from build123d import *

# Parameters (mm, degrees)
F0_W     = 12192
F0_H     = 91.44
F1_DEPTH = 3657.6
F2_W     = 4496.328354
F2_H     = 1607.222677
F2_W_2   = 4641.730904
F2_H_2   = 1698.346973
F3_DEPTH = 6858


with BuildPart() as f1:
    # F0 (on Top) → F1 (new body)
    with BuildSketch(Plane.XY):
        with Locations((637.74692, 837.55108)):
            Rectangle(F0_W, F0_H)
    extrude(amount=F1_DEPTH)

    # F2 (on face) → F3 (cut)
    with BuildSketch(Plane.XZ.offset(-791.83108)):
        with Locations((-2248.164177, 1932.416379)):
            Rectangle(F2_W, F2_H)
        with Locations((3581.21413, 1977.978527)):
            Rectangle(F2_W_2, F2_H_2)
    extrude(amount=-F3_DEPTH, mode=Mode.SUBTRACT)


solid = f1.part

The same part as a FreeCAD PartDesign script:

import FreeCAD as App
import Part
import Sketcher
from FreeCAD import Vector
Q = App.Units.Quantity

doc = App.newDocument("Part")
body = doc.addObject("PartDesign::Body", "Body")

sketch1 = body.newObject("Sketcher::SketchObject", "Sketch")
sketch1.AttachmentSupport = (doc.getObject("XY_Plane"), [""])
sketch1.MapMode = "FlatFace"
sketch1.addGeometry(Part.LineSegment(Vector(-5458, 883, 0), Vector(-5458, 792, 0)), False)
sketch1.addGeometry(Part.LineSegment(Vector(-5458, 792, 0), Vector(6734, 792, 0)), False)
sketch1.addGeometry(Part.LineSegment(Vector(6734, 792, 0), Vector(6734, 883, 0)), False)
sketch1.addGeometry(Part.LineSegment(Vector(6734, 883, 0), Vector(-5458, 883, 0)), False)
sketch1.addConstraint(Sketcher.Constraint("Coincident", 0, 2, 1, 1))
sketch1.addConstraint(Sketcher.Constraint("Coincident", 1, 2, 2, 1))
sketch1.addConstraint(Sketcher.Constraint("Coincident", 2, 2, 3, 1))
sketch1.addConstraint(Sketcher.Constraint("Coincident", 3, 2, 0, 1))
sketch1.addConstraint(Sketcher.Constraint("Vertical", 0))
sketch1.addConstraint(Sketcher.Constraint("Horizontal", 1))
sketch1.addConstraint(Sketcher.Constraint("Vertical", 2))
sketch1.addConstraint(Sketcher.Constraint("Horizontal", 3))
sketch1.addConstraint(Sketcher.Constraint("DistanceX", 1, 1, 1, 2, Q("480 in")))
sketch1.addConstraint(Sketcher.Constraint("DistanceY", 0, 2, 0, 1, Q("3.6 in")))
sketch1.addConstraint(Sketcher.Constraint("DistanceX", 0, 2, -1, 1, 5458.25308))
sketch1.addConstraint(Sketcher.Constraint("DistanceY", -1, 1, 0, 2, 791.83108))
pad1 = body.newObject("PartDesign::Pad", "Pad")
pad1.Profile = sketch1
pad1.Length = Q("144 in")

sketch2 = body.newObject("Sketcher::SketchObject", "Sketch001")
sketch2.AttachmentSupport = (doc.getObject("XZ_Plane"), [""])
sketch2.MapMode = "FlatFace"
sketch2.AttachmentOffset = App.Placement(Vector(0, 0, -791.83108), App.Rotation())
sketch2.addGeometry(Part.LineSegment(Vector(-4496, 2736, 0), Vector(-4496, 1129, 0)), False)
sketch2.addGeometry(Part.LineSegment(Vector(-4496, 1129, 0), Vector(0, 1129, 0)), False)
sketch2.addGeometry(Part.LineSegment(Vector(0, 1129, 0), Vector(0, 2736, 0)), False)
sketch2.addGeometry(Part.LineSegment(Vector(0, 2736, 0), Vector(-4496, 2736, 0)), False)
sketch2.addGeometry(Part.LineSegment(Vector(1260, 2827, 0), Vector(1260, 1129, 0)), False)
sketch2.addGeometry(Part.LineSegment(Vector(1260, 1129, 0), Vector(5902, 1129, 0)), False)
sketch2.addGeometry(Part.LineSegment(Vector(5902, 1129, 0), Vector(5902, 2827, 0)), False)
sketch2.addGeometry(Part.LineSegment(Vector(5902, 2827, 0), Vector(1260, 2827, 0)), False)
sketch2.addConstraint(Sketcher.Constraint("Coincident", 0, 2, 1, 1))
sketch2.addConstraint(Sketcher.Constraint("Coincident", 1, 2, 2, 1))
sketch2.addConstraint(Sketcher.Constraint("Coincident", 2, 2, 3, 1))
sketch2.addConstraint(Sketcher.Constraint("Coincident", 3, 2, 0, 1))
sketch2.addConstraint(Sketcher.Constraint("Coincident", 4, 2, 5, 1))
sketch2.addConstraint(Sketcher.Constraint("Coincident", 5, 2, 6, 1))
sketch2.addConstraint(Sketcher.Constraint("Coincident", 6, 2, 7, 1))
sketch2.addConstraint(Sketcher.Constraint("Coincident", 7, 2, 4, 1))
sketch2.addConstraint(Sketcher.Constraint("Vertical", 0))
sketch2.addConstraint(Sketcher.Constraint("Horizontal", 1))
sketch2.addConstraint(Sketcher.Constraint("Vertical", 2))
sketch2.addConstraint(Sketcher.Constraint("Horizontal", 3))
sketch2.addConstraint(Sketcher.Constraint("Vertical", 4))
sketch2.addConstraint(Sketcher.Constraint("Horizontal", 5))
sketch2.addConstraint(Sketcher.Constraint("Vertical", 6))
sketch2.addConstraint(Sketcher.Constraint("Horizontal", 7))
sketch2.addConstraint(Sketcher.Constraint("PointOnObject", 1, 2, -2))
sketch2.addConstraint(Sketcher.Constraint("Horizontal", 1, 2, 4, 2))
sketch2.addConstraint(Sketcher.Constraint("DistanceX", 1, 1, 1, 2, 4496.328354))
sketch2.addConstraint(Sketcher.Constraint("DistanceX", 5, 1, 5, 2, 4641.730904))
sketch2.addConstraint(Sketcher.Constraint("DistanceY", 0, 2, 0, 1, 1607.222677))
sketch2.addConstraint(Sketcher.Constraint("DistanceY", 4, 2, 4, 1, 1698.346973))
sketch2.addConstraint(Sketcher.Constraint("DistanceY", -1, 1, 0, 2, 1128.80504))
sketch2.addConstraint(Sketcher.Constraint("DistanceX", -1, 1, 4, 2, 1260.348678))
pocket1 = body.newObject("PartDesign::Pocket", "Pocket")
pocket1.Profile = sketch2
pocket1.Length = Q("270 in")

doc.recompute()
